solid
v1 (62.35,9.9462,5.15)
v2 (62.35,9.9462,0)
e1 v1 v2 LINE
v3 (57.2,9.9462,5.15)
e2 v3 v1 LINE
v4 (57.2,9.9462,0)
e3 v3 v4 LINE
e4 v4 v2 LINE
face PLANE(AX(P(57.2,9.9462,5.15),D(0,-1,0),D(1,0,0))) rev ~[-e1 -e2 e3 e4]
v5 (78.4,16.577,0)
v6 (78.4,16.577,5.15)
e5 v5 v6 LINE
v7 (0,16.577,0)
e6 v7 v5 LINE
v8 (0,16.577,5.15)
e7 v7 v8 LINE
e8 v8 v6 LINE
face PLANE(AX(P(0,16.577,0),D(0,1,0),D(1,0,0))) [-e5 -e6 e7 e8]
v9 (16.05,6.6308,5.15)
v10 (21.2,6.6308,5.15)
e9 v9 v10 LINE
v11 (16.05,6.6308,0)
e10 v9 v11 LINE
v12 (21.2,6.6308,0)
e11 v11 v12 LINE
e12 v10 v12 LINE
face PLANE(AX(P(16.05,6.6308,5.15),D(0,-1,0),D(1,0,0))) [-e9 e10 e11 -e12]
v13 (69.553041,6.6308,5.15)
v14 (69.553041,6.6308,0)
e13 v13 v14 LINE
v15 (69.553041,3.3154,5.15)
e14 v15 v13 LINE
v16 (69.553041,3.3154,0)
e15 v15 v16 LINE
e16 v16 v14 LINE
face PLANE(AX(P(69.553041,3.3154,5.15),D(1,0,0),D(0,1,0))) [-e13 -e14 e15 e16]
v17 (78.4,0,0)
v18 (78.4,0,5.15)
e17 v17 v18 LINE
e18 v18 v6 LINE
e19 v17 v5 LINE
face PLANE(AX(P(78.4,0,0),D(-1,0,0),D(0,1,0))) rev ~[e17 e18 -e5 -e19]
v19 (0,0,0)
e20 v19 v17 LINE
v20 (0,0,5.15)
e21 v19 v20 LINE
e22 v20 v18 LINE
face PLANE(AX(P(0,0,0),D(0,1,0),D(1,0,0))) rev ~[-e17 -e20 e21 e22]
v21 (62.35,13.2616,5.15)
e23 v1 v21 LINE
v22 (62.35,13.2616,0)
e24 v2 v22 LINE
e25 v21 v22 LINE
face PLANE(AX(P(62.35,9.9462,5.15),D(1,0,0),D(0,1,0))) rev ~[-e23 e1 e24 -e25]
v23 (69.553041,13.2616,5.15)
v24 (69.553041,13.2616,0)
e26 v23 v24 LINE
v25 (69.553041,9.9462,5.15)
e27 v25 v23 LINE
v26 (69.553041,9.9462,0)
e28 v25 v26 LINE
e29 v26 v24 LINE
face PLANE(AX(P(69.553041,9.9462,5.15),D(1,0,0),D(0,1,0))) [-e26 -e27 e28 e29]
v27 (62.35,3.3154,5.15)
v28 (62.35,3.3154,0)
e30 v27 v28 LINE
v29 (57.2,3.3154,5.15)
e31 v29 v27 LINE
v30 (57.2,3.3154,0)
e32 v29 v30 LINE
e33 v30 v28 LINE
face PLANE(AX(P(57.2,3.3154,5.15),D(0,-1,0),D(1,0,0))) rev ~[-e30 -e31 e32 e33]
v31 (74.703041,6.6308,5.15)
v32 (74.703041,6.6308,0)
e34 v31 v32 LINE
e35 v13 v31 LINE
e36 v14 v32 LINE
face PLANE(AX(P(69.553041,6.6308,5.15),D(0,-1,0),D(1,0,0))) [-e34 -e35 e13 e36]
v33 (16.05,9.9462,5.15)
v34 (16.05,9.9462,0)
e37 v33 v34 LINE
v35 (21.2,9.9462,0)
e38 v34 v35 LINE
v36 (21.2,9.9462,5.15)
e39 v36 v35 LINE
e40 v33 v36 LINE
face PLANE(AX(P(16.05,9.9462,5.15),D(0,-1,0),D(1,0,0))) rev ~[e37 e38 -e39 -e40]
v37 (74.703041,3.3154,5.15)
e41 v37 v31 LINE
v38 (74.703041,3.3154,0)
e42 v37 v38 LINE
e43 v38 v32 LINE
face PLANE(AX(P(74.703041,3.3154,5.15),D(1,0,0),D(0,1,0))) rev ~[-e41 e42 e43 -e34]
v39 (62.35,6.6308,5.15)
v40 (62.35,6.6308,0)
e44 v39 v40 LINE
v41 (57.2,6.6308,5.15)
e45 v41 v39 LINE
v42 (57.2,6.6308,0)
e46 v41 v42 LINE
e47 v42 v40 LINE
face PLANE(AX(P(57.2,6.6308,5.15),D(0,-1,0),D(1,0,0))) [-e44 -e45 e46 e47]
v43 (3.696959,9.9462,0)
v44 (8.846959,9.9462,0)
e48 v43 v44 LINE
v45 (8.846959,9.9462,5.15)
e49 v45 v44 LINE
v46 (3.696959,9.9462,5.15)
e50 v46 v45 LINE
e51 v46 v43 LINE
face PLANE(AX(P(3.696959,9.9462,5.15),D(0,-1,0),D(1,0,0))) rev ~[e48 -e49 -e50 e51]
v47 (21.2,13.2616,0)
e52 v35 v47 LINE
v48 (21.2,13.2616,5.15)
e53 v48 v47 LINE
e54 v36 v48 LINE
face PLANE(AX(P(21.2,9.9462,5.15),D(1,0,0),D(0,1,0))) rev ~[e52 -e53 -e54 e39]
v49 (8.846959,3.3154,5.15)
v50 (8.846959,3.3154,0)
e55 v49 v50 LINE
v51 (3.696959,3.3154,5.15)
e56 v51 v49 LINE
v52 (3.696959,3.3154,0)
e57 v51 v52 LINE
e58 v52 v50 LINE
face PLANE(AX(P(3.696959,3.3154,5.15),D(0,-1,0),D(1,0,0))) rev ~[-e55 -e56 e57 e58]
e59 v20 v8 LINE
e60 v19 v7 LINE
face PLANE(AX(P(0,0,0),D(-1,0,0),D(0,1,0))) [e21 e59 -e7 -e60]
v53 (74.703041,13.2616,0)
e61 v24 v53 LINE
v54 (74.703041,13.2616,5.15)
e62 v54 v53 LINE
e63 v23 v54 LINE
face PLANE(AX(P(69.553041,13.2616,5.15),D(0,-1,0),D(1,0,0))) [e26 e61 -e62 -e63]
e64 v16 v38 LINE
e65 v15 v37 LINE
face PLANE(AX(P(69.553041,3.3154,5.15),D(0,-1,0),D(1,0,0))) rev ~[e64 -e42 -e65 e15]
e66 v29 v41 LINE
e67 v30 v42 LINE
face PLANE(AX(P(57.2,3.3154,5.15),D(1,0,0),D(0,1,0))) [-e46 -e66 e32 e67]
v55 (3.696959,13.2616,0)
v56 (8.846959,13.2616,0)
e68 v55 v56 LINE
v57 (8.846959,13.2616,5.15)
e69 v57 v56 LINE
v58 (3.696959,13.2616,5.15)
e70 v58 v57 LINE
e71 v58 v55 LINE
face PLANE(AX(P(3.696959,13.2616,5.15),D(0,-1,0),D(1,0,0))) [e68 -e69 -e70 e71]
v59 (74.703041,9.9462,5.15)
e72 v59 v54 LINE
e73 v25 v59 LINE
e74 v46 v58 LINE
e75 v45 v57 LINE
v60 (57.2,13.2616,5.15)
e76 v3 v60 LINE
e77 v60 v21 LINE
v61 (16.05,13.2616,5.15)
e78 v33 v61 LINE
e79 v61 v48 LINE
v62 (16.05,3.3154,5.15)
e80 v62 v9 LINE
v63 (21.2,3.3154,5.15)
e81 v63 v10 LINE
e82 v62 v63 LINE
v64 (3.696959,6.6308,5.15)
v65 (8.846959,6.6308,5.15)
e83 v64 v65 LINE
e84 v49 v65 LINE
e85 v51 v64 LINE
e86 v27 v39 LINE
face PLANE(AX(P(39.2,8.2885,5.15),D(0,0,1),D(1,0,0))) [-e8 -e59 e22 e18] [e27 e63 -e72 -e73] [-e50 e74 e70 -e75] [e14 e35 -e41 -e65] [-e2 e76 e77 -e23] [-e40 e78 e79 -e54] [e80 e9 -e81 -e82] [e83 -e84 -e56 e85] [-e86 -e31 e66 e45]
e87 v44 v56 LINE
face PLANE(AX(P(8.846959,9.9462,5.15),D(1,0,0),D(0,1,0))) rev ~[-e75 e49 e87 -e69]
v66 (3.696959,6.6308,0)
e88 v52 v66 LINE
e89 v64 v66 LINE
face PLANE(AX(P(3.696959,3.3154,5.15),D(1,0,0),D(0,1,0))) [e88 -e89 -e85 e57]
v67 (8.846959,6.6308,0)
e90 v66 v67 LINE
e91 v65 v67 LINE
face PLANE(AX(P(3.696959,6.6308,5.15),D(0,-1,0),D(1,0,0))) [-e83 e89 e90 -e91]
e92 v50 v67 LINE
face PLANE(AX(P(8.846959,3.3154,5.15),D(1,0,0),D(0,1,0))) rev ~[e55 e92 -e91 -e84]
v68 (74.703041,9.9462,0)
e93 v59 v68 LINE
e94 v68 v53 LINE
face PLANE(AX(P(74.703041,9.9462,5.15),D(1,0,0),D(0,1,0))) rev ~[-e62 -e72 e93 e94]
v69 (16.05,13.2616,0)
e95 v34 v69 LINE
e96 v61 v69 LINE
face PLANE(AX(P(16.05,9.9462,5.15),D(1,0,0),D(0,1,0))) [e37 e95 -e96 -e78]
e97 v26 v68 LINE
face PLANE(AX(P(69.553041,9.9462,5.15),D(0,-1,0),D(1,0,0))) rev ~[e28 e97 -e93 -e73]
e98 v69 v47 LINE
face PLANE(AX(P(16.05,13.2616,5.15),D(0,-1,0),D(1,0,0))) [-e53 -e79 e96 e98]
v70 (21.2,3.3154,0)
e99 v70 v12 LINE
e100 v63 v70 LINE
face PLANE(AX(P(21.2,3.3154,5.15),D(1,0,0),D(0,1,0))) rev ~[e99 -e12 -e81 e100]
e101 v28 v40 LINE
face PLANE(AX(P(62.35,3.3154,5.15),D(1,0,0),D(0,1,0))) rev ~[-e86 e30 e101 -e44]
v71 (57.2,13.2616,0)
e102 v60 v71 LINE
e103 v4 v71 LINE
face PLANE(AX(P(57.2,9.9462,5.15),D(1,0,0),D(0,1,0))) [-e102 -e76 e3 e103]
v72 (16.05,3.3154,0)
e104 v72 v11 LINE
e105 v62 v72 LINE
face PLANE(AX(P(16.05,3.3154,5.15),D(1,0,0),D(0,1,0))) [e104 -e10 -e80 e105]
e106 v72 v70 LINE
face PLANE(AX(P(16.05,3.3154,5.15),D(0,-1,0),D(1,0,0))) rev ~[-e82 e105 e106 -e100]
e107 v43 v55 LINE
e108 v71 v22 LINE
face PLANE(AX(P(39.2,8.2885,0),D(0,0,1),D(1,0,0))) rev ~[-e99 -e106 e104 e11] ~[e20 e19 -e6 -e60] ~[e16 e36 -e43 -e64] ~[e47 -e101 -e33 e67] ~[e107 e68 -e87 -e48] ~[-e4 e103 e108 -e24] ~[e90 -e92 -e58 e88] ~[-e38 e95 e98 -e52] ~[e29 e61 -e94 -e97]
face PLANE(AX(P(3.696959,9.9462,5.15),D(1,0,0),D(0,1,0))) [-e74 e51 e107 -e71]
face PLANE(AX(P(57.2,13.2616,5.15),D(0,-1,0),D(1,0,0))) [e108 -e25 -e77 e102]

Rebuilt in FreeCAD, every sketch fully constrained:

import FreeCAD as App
import Part
import Sketcher
from FreeCAD import Vector
Q = App.Units.Quantity


def add_polygon(sketch, points):
    """Adds a closed chain of lines whose ends are joined by coincident constraints."""
    first, n = sketch.GeometryCount, len(points)
    for a, b in zip(points, points[1:] + points[:1]):
        sketch.addGeometry(Part.LineSegment(App.Vector(*a, 0), App.Vector(*b, 0)), False)
    for i in range(n):
        sketch.addConstraint(Sketcher.Constraint("Coincident", first + i, 2, first + (i + 1) % n, 1))

doc = App.newDocument("Part")
body = doc.addObject("PartDesign::Body", "Body")

# Sketch on XY plane
sketch1 = body.newObject("Sketcher::SketchObject", "Sketch")
sketch1.AttachmentSupport = (doc.getObject("XY_Plane"), [""])
sketch1.MapMode = "FlatFace"
add_polygon(sketch1, [(0, 17), (0, 0), (78, 0), (78, 17)])  # lines 0-3
sketch1.addConstraint([
    Sketcher.Constraint("Vertical", 0),
    Sketcher.Constraint("Horizontal", 1),
    Sketcher.Constraint("Vertical", 2),
    Sketcher.Constraint("Horizontal", 3),
    Sketcher.Constraint("Coincident", 0, 2, -1, 1),
    Sketcher.Constraint("DistanceX", 1, 1, 1, 2, Q("78.4 mm")),
    Sketcher.Constraint("DistanceY", 0, 2, 0, 1, Q("16.577 mm")),
])
pad1 = body.newObject("PartDesign::Pad", "Pad")
pad1.Profile = sketch1
pad1.Length = 5.15

# Sketch on XY plane
sketch2 = body.newObject("Sketcher::SketchObject", "Sketch001")
sketch2.AttachmentSupport = (doc.getObject("XY_Plane"), [""])
sketch2.MapMode = "FlatFace"
sketch2.AttachmentOffset = App.Placement(Vector(0, 0, 5.15), App.Rotation())
add_polygon(sketch2, [(3.7, 13.3), (3.7, 9.9), (8.8, 9.9), (8.8, 13.3)])  # lines 0-3
add_polygon(sketch2, [(3.7, 6.6), (3.7, 3.3), (8.8, 3.3), (8.8, 6.6)])  # lines 4-7
add_polygon(sketch2, [(16.1, 13.3), (16.1, 9.9), (21.2, 9.9), (21.2, 13.3)])  # lines 8-11
add_polygon(sketch2, [(16.1, 6.6), (16.1, 3.3), (21.2, 3.3), (21.2, 6.6)])  # lines 12-15
add_polygon(sketch2, [(57.2, 6.6), (57.2, 3.3), (62.4, 3.3), (62.4, 6.6)])  # lines 16-19
add_polygon(sketch2, [(57.2, 13.3), (57.2, 9.9), (62.4, 9.9), (62.4, 13.3)])  # lines 20-23
add_polygon(sketch2, [(69.6, 6.6), (69.6, 3.3), (74.7, 3.3), (74.7, 6.6)])  # lines 24-27
add_polygon(sketch2, [(69.6, 13.3), (69.6, 9.9), (74.7, 9.9), (74.7, 13.3)])  # lines 28-31
sketch2.addConstraint([
    Sketcher.Constraint("Vertical", 0),
    Sketcher.Constraint("Horizontal", 1),
    Sketcher.Constraint("Vertical", 2),
    Sketcher.Constraint("Horizontal", 3),
    Sketcher.Constraint("Vertical", 4),
    Sketcher.Constraint("Horizontal", 5),
    Sketcher.Constraint("Vertical", 6),
    Sketcher.Constraint("Horizontal", 7),
    Sketcher.Constraint("Vertical", 8),
    Sketcher.Constraint("Horizontal", 9),
    Sketcher.Constraint("Vertical", 10),
    Sketcher.Constraint("Horizontal", 11),
    Sketcher.Constraint("Vertical", 12),
    Sketcher.Constraint("Horizontal", 13),
    Sketcher.Constraint("Vertical", 14),
    Sketcher.Constraint("Horizontal", 15),
    Sketcher.Constraint("Vertical", 16),
    Sketcher.Constraint("Horizontal", 17),
    Sketcher.Constraint("Vertical", 18),
    Sketcher.Constraint("Horizontal", 19),
    Sketcher.Constraint("Vertical", 20),
    Sketcher.Constraint("Horizontal", 21),
    Sketcher.Constraint("Vertical", 22),
    Sketcher.Constraint("Horizontal", 23),
    Sketcher.Constraint("Vertical", 24),
    Sketcher.Constraint("Horizontal", 25),
    Sketcher.Constraint("Vertical", 26),
    Sketcher.Constraint("Horizontal", 27),
    Sketcher.Constraint("Vertical", 28),
    Sketcher.Constraint("Horizontal", 29),
    Sketcher.Constraint("Vertical", 30),
    Sketcher.Constraint("Horizontal", 31),
    Sketcher.Constraint("Horizontal", 1, 2, 8, 2),
    Sketcher.Constraint("Horizontal", 3, 2, 10, 2),
    Sketcher.Constraint("Horizontal", 5, 2, 12, 2),
    Sketcher.Constraint("Horizontal", 7, 2, 14, 2),
    Sketcher.Constraint("Horizontal", 13, 2, 16, 2),
    Sketcher.Constraint("Horizontal", 15, 2, 18, 2),
    Sketcher.Constraint("Horizontal", 9, 2, 20, 2),
    Sketcher.Constraint("Horizontal", 11, 2, 22, 2),
    Sketcher.Constraint("Horizontal", 17, 2, 24, 2),
    Sketcher.Constraint("Horizontal", 19, 2, 26, 2),
    Sketcher.Constraint("Horizontal", 21, 2, 28, 2),
    Sketcher.Constraint("Horizontal", 23, 2, 30, 2),
    Sketcher.Constraint("Vertical", 3, 2, 4, 2),
    Sketcher.Constraint("Vertical", 2, 2, 5, 2),
    Sketcher.Constraint("Vertical", 11, 2, 12, 2),
    Sketcher.Constraint("Vertical", 10, 2, 13, 2),
    Sketcher.Constraint("Vertical", 19, 2, 20, 2),
    Sketcher.Constraint("Vertical", 18, 2, 21, 2),
    Sketcher.Constraint("Vertical", 27, 2, 28, 2),
    Sketcher.Constraint("Vertical", 26, 2, 29, 2),
    Sketcher.Constraint("Equal", 7, 9),
    Sketcher.Constraint("Equal", 15, 17),
    Sketcher.Constraint("Equal", 23, 25),
    Sketcher.Constraint("Equal", 2, 4),
    Sketcher.Constraint("DistanceX", 13, 2, 16, 2, Q("36 mm")),
    Sketcher.Constraint("DistanceX", 1, 1, 1, 2, Q("5.15 mm")),
    Sketcher.Constraint("DistanceX", -1, 1, 9, 2, Q("21.2 mm")),
    Sketcher.Constraint("DistanceY", 0, 2, 0, 1, Q("3.3154 mm")),
    Sketcher.Constraint("DistanceY", -1, 1, 0, 2, Q("9.9462 mm")),
    Sketcher.Constraint("DistanceY", -1, 1, 4, 2, Q("3.3154 mm")),
    Sketcher.Constraint("DistanceX", -1, 1, 0, 2, Q("3.696959 mm")),
    Sketcher.Constraint("DistanceX", -1, 1, 24, 2, Q("69.553041 mm")),
])
pocket1 = body.newObject("PartDesign::Pocket", "Pocket")
pocket1.Profile = sketch2
pocket1.Type = "ThroughAll"

doc.recompute()
